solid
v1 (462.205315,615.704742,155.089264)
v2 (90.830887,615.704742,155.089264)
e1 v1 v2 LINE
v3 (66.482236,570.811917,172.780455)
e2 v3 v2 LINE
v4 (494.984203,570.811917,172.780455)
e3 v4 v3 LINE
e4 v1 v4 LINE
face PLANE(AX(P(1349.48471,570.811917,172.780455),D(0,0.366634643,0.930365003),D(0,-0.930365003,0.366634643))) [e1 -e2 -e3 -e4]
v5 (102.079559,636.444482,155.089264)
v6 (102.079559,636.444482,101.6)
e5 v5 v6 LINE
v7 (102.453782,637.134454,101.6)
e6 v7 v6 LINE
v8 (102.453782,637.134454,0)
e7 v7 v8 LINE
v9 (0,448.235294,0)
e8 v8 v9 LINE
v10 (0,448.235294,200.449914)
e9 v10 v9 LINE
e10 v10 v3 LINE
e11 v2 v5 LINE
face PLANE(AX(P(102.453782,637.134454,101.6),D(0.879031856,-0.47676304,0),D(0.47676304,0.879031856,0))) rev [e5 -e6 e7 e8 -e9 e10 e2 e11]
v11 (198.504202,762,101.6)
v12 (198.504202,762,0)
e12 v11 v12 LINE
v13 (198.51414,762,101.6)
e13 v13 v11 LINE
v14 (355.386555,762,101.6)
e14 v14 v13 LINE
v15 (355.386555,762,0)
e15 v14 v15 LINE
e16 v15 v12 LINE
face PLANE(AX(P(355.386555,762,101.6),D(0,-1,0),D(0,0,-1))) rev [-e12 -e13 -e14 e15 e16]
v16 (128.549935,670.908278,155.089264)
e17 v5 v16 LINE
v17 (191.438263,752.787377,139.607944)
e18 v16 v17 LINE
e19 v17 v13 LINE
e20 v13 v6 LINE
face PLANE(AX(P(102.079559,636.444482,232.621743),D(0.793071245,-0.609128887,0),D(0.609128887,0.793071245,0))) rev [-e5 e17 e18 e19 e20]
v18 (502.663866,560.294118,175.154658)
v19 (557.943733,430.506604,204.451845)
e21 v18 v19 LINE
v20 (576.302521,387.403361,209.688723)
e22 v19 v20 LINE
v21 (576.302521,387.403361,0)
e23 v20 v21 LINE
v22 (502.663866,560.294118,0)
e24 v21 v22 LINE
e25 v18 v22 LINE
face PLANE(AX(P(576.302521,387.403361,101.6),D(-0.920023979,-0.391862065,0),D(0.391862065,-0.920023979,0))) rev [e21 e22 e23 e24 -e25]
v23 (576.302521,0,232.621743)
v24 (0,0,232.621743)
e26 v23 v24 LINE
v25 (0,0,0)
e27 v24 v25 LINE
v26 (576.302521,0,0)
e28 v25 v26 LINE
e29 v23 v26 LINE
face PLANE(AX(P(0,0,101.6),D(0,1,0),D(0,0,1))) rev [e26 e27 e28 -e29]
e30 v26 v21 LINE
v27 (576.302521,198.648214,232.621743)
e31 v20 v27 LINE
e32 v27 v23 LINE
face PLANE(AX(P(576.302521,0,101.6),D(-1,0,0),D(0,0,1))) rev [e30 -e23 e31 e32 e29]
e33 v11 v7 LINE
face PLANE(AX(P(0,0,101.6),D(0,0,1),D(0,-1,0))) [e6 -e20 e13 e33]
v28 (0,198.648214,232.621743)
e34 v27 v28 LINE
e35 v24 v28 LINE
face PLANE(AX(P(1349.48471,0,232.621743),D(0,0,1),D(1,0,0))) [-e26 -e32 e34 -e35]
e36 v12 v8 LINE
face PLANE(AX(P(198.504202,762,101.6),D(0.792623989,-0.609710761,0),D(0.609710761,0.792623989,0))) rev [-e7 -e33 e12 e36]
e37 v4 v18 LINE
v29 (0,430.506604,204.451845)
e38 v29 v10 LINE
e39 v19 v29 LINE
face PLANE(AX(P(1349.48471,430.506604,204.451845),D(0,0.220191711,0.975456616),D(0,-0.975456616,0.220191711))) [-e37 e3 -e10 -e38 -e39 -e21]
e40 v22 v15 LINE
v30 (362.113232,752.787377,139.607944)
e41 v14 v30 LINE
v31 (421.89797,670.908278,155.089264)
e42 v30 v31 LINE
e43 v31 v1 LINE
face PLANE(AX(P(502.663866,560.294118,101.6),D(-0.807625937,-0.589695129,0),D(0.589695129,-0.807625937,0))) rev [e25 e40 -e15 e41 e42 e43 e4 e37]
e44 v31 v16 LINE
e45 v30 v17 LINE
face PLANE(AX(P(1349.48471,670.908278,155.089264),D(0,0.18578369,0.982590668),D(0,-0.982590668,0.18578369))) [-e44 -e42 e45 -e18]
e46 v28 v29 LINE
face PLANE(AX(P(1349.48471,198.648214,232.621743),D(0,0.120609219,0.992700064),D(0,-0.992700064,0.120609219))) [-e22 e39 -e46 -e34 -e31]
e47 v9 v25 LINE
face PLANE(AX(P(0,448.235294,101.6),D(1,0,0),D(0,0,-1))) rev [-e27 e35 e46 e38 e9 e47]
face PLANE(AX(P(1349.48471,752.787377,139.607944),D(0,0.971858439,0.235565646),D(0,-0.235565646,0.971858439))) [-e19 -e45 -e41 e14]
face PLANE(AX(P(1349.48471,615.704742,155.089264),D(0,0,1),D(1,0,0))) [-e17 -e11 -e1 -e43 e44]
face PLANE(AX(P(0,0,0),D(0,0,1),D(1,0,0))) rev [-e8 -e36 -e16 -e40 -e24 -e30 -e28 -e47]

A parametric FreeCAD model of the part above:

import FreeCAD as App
import Part
import Sketcher
from FreeCAD import Vector
Q = App.Units.Quantity


def add_polygon(sketch, points):
    """Adds a closed chain of lines whose ends are joined by coincident constraints."""
    first, n = sketch.GeometryCount, len(points)
    for a, b in zip(points, points[1:] + points[:1]):
        sketch.addGeometry(Part.LineSegment(App.Vector(*a, 0), App.Vector(*b, 0)), False)
    for i in range(n):
        sketch.addConstraint(Sketcher.Constraint("Coincident", first + i, 2, first + (i + 1) % n, 1))

doc = App.newDocument("Part")
params = doc.addObject("Spreadsheet::Sheet", "Params")
for row, (alias, value) in enumerate([
    ("pad1_length", "4 in"),
    ("sketch2_width", "30 in"),
    ("pad2_length", "576.302521 mm"),
], start=1):
    params.set(f"A{row}", alias)
    params.set(f"B{row}", "=" + value)
    params.setAlias(f"B{row}", alias)

body = doc.addObject("PartDesign::Body", "Body")

# Sketch on XY plane
sketch1 = body.newObject("Sketcher::SketchObject", "Sketch")
sketch1.AttachmentSupport = (doc.getObject("XY_Plane"), [""])
sketch1.MapMode = "FlatFace"
add_polygon(sketch1, [(0, 0), (576, 0), (576, 387), (503, 560), (355, 762), (199, 762), (102, 637), (0, 448)])  # lines 0-7
sketch1.addConstraint([
    Sketcher.Constraint("Horizontal", 0),
    Sketcher.Constraint("Vertical", 1),
    Sketcher.Constraint("Horizontal", 4),
    Sketcher.Constraint("Vertical", 7),
    Sketcher.Constraint("Coincident", 7, 2, -1, 1),
    Sketcher.Constraint("DistanceY", -1, 1, 3, 2, Q("30 in")),
    Sketcher.Constraint("DistanceX", 0, 1, 0, 2, Q("576.302521 mm")),
    Sketcher.Constraint("DistanceY", 1, 1, 1, 2, Q("387.403361 mm")),
    Sketcher.Constraint("DistanceX", -1, 1, 4, 2, Q("198.504202 mm")),
    Sketcher.Constraint("DistanceX", 4, 2, 4, 1, Q("156.882353 mm")),
    Sketcher.Constraint("DistanceY", 7, 2, 7, 1, Q("448.235294 mm")),
    Sketcher.Constraint("DistanceX", -1, 1, 5, 2, Q("102.453782 mm")),
    Sketcher.Constraint("DistanceX", 3, 2, 2, 2, Q("147.277311 mm")),
    Sketcher.Constraint("DistanceY", 6, 2, 5, 2, Q("188.89916 mm")),
    Sketcher.Constraint("Distance", 2, Q("187.919837 mm")),
])
pad1 = body.newObject("PartDesign::Pad", "Pad")
pad1.Profile = sketch1
pad1.setExpression("Length", "Params.pad1_length")

# Sketch on YZ plane
sketch2 = body.newObject("Sketcher::SketchObject", "Sketch001")
sketch2.AttachmentSupport = (doc.getObject("YZ_Plane"), [""])
sketch2.MapMode = "FlatFace"
add_polygon(sketch2, [(0, 102), (0, 233), (199, 233), (431, 204), (571, 173), (616, 155), (671, 155), (753, 140), (762, 102)])  # lines 0-8
sketch2.addConstraint([
    Sketcher.Constraint("Vertical", 0),
    Sketcher.Constraint("Horizontal", 1),
    Sketcher.Constraint("Horizontal", 5),
    Sketcher.Constraint("Horizontal", 8),
    Sketcher.Constraint("PointOnObject", 0, 2, -2),
    Sketcher.Constraint("DistanceX", 8, 2, 8, 1, Q("30 in")),
    Sketcher.Constraint("DistanceY", -1, 1, 7, 2, Q("4 in")),
    Sketcher.Constraint("DistanceX", 5, 2, 6, 2, Q("81.879098 mm")),
    Sketcher.Constraint("DistanceY", 6, 2, 2, 2, Q("64.843901 mm")),
    Sketcher.Constraint("DistanceY", 6, 2, 1, 2, Q("93.013799 mm")),
    Sketcher.Constraint("Distance", 7, Q("39.108519 mm")),
    Sketcher.Constraint("DistanceX", 1, 1, 1, 2, Q("198.648214 mm")),
    Sketcher.Constraint("DistanceX", 5, 1, 5, 2, Q("55.203537 mm")),
    Sketcher.Constraint("DistanceY", 0, 1, 0, 2, Q("131.021743 mm")),
    Sketcher.Constraint("DistanceX", 1, 2, 2, 2, Q("231.85839 mm")),
    Sketcher.Constraint("DistanceY", 3, 2, 2, 2, Q("31.67139 mm")),
    Sketcher.Constraint("DistanceY", 4, 2, 3, 2, Q("17.691191 mm")),
    Sketcher.Constraint("DistanceX", 3, 2, 5, 2, Q("100.096362 mm")),
])
sketch2.setExpression("Constraints[14]", "Params.sketch2_width")
pad2 = body.newObject("PartDesign::Pad", "Pad001")
pad2.Profile = sketch2
pad2.setExpression("Length", "Params.pad2_length")

# Sketch on XY plane
sketch3 = body.newObject("Sketcher::SketchObject", "Sketch002")
sketch3.AttachmentSupport = (doc.getObject("XY_Plane"), [""])
sketch3.MapMode = "FlatFace"
sketch3.AttachmentOffset = App.Placement(Vector(0, 0, 4 * 25.4), App.Rotation())
add_polygon(sketch3, [(102.079559, 636.444482), (0, 448.235294), (-179.71587, 482.849418), (-227.879484, 941.921734), (205.052343, 987.342816), (205.052343, 770.512584)])  # lines 0-5
sketch3.addConstraint([
    Sketcher.Constraint("Vertical", 4),
    Sketcher.Constraint("PointOnObject", 0, 2, -2),
    Sketcher.Constraint("DistanceY", 1, 2, 3, 2, Q("504.493398 mm")),
    Sketcher.Constraint("Distance", 1, Q("183.018938 mm")),
    Sketcher.Constraint("DistanceY", 4, 2, 4, 1, Q("216.830233 mm")),
    Sketcher.Constraint("DistanceX", 1, 2, -1, 1, Q("179.71587 mm")),
    Sketcher.Constraint("DistanceY", -1, 1, 1, 2, Q("482.849418 mm")),
    Sketcher.Constraint("DistanceX", -1, 1, 5, 2, Q("102.079559 mm")),
    Sketcher.Constraint("DistanceY", -1, 1, 5, 2, Q("636.444482 mm")),
    Sketcher.Constraint("DistanceY", 0, 2, 2, 2, Q("493.68644 mm")),
    Sketcher.Constraint("Distance", 2, Q("461.591946 mm")),
    Sketcher.Constraint("Distance", 3, Q("435.307985 mm")),
])
pocket1 = body.newObject("PartDesign::Pocket", "Pocket")
pocket1.Profile = sketch3
pocket1.Type = "ThroughAll"
pocket1.Reversed = True

# Sketch on XY plane
sketch4 = body.newObject("Sketcher::SketchObject", "Sketch003")
sketch4.AttachmentSupport = (doc.getObject("XY_Plane"), [""])
sketch4.MapMode = "FlatFace"
sketch4.AttachmentOffset = App.Placement(Vector(0, 0, 4 * 25.4), App.Rotation())
add_polygon(sketch4, [(576, 387), (503, 560), (355, 762), (387, 962), (935, 962), (885, 473)])  # lines 0-5
sketch4.addConstraint([
    Sketcher.Constraint("Horizontal", 3),
    Sketcher.Constraint("DistanceY", -1, 1, 1, 2, Q("30 in")),
    Sketcher.Constraint("DistanceX", 3, 1, 3, 2, Q("548.4432 mm")),
    Sketcher.Constraint("DistanceY", 4, 2, 0, 2, Q("87.344999 mm")),
    Sketcher.Constraint("Distance", 5, Q("320.24845 mm")),
    Sketcher.Constraint("DistanceX", -1, 1, 2, 2, Q("386.64778 mm")),
    Sketcher.Constraint("DistanceY", -1, 1, 2, 2, Q("961.526141 mm")),
    Sketcher.Constraint("DistanceY", -1, 1, 4, 2, Q("472.949119 mm")),
    Sketcher.Constraint("DistanceX", -1, 1, 5, 2, Q("576.302521 mm")),
    Sketcher.Constraint("DistanceY", -1, 1, 5, 2, Q("387.403361 mm")),
    Sketcher.Constraint("DistanceX", 1, 2, 0, 2, Q("147.277311 mm")),
    Sketcher.Constraint("DistanceX", 0, 2, 4, 2, Q("382.25005 mm")),
])
pocket2 = body.newObject("PartDesign::Pocket", "Pocket001")
pocket2.Profile = sketch4
pocket2.Type = "ThroughAll"
pocket2.Reversed = True

doc.recompute()
